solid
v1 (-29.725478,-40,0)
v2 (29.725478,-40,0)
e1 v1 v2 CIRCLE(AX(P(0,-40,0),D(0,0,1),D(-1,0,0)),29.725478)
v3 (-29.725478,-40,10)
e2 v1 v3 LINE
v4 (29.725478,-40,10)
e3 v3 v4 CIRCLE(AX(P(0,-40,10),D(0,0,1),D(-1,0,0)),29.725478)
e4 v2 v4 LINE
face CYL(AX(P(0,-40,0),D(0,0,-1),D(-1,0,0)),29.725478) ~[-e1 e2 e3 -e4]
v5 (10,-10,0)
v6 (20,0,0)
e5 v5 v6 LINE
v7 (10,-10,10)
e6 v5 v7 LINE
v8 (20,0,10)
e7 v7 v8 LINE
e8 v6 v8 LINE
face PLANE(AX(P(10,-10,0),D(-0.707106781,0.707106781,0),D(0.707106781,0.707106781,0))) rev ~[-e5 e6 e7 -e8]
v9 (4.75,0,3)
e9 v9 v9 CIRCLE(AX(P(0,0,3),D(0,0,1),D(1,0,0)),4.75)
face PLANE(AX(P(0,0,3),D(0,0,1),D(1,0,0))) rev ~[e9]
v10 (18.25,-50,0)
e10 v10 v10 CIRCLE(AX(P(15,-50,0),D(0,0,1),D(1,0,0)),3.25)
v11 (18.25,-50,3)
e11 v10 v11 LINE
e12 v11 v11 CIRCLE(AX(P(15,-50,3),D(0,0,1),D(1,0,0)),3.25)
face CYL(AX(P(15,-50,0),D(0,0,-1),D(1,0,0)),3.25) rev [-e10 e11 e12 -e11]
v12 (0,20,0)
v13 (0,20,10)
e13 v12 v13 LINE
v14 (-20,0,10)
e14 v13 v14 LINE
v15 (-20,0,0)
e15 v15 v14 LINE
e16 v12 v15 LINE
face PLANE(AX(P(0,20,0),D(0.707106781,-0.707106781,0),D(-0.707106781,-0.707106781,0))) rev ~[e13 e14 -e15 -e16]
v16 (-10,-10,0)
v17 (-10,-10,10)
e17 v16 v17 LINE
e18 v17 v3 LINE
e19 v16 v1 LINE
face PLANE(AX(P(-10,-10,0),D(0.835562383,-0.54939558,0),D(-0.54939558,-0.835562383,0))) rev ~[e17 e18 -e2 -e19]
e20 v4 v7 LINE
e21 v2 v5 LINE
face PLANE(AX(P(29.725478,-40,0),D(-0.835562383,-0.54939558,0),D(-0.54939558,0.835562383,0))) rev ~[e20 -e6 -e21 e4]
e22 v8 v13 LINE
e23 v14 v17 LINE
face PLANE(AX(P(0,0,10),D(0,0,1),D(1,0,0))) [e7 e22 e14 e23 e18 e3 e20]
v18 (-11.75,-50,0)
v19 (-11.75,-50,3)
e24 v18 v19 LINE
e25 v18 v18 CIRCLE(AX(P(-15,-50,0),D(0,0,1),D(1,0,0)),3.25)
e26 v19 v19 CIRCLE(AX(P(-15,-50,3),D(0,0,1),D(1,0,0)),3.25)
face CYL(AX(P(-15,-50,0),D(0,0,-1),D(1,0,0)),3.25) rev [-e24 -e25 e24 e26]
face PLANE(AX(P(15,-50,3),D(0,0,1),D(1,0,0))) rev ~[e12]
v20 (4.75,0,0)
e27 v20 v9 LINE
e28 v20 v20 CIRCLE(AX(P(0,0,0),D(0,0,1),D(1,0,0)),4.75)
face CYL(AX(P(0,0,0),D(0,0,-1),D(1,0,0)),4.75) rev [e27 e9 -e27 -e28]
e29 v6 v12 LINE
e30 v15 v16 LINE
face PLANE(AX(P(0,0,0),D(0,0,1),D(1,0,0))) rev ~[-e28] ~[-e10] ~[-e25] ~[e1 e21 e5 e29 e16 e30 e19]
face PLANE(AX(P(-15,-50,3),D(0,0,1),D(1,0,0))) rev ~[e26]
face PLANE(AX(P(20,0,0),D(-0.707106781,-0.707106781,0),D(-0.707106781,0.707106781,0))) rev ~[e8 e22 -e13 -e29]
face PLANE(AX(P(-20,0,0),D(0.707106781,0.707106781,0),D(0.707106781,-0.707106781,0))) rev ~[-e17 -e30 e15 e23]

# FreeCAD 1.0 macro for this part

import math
import FreeCAD as App
import Part
import Sketcher
Q = App.Units.Quantity

doc = App.newDocument("Part")
params = doc.addObject("Spreadsheet::Sheet", "Params")
for row, (alias, value) in enumerate([
    ("pad1_length", "10 mm"),
    ("sketch2_diameter", "9.5 mm"),
    ("sketch2_diameter2", "6.5 mm"),
    ("pocket1_length", "3 mm"),
], start=1):
    params.set(f"A{row}", alias)
    params.set(f"B{row}", "=" + value)
    params.setAlias(f"B{row}", alias)

body = doc.addObject("PartDesign::Body", "Body")

# Sketch on XY plane
sketch1 = body.newObject("Sketcher::SketchObject", "Sketch")
sketch1.AttachmentSupport = (doc.getObject("XY_Plane"), [""])
sketch1.MapMode = "FlatFace"
sketch1.addGeometry(Part.LineSegment(App.Vector(20, 0, 0), App.Vector(0, 20, 0)), False)
sketch1.addGeometry(Part.LineSegment(App.Vector(0, 20, 0), App.Vector(-20, 0, 0)), False)
sketch1.addGeometry(Part.LineSegment(App.Vector(-20, 0, 0), App.Vector(-10, -10, 0)), False)
sketch1.addGeometry(Part.LineSegment(App.Vector(-10, -10, 0), App.Vector(-30, -40, 0)), False)
sketch1.addGeometry(Part.ArcOfCircle(Part.Circle(App.Vector(0, -40, 0), App.Vector(0, 0, 1), 30), math.radians(180), math.radians(360)), False)
sketch1.addGeometry(Part.LineSegment(App.Vector(30, -40, 0), App.Vector(10, -10, 0)), False)
sketch1.addGeometry(Part.LineSegment(App.Vector(10, -10, 0), App.Vector(20, 0, 0)), False)
sketch1.addConstraint(Sketcher.Constraint("Coincident", 0, 2, 1, 1))
sketch1.addConstraint(Sketcher.Constraint("Coincident", 1, 2, 2, 1))
sketch1.addConstraint(Sketcher.Constraint("Coincident", 2, 2, 3, 1))
sketch1.addConstraint(Sketcher.Constraint("Coincident", 3, 2, 4, 1))
sketch1.addConstraint(Sketcher.Constraint("Coincident", 4, 2, 5, 1))
sketch1.addConstraint(Sketcher.Constraint("Coincident", 5, 2, 6, 1))
sketch1.addConstraint(Sketcher.Constraint("Coincident", 6, 2, 0, 1))
sketch1.addConstraint(Sketcher.Constraint("Symmetric", 1, 2, 6, 2, -1, 1))
sketch1.addConstraint(Sketcher.Constraint("Symmetric", 3, 2, 4, 2, -2))
sketch1.addConstraint(Sketcher.Constraint("Symmetric", 2, 2, 5, 2, -2))
sketch1.addConstraint(Sketcher.Constraint("PointOnObject", 0, 2, -2))
sketch1.addConstraint(Sketcher.Constraint("PointOnObject", 1, 2, -1))
sketch1.addConstraint(Sketcher.Constraint("Perpendicular", 0, 1))
sketch1.addConstraint(Sketcher.Constraint("Perpendicular", 1, 2))
sketch1.addConstraint(Sketcher.Constraint("Horizontal", 4, 3, 3, 2))
sketch1.addConstraint(Sketcher.Constraint("DistanceY", 4, 3, -1, 1, Q("40 mm")))
sketch1.addConstraint(Sketcher.Constraint("DistanceY", -1, 1, 0, 2, Q("20 mm")))
sketch1.addConstraint(Sketcher.Constraint("DistanceX", 2, 2, -1, 1, Q("10 mm")))
sketch1.addConstraint(Sketcher.Constraint("Radius", 4, Q("29.725478 mm")))
pad1 = body.newObject("PartDesign::Pad", "Pad")
pad1.Profile = sketch1
pad1.setExpression("Length", "Params.pad1_length")

# Sketch on XY plane
sketch2 = body.newObject("Sketcher::SketchObject", "Sketch001")
sketch2.AttachmentSupport = (doc.getObject("XY_Plane"), [""])
sketch2.MapMode = "FlatFace"
sketch2.addGeometry(Part.Circle(App.Vector(0, 0, 0), App.Vector(0, 0, 1), 4.8), False)
sketch2.addGeometry(Part.Circle(App.Vector(15, -50, 0), App.Vector(0, 0, 1), 3.2), False)
sketch2.addGeometry(Part.Circle(App.Vector(-15, -50, 0), App.Vector(0, 0, 1), 3.2), False)
sketch2.addConstraint(Sketcher.Constraint("Coincident", 0, 3, -1, 1))
sketch2.addConstraint(Sketcher.Constraint("Equal", 1, 2))
sketch2.addConstraint(Sketcher.Constraint("Symmetric", 1, 3, 2, 3, -2))
sketch2.addConstraint(Sketcher.Constraint("Diameter", 0, Q("9.5 mm")))
sketch2.addConstraint(Sketcher.Constraint("Diameter", 1, Q("6.5 mm")))
sketch2.addConstraint(Sketcher.Constraint("DistanceX", -1, 1, 1, 3, Q("15 mm")))
sketch2.addConstraint(Sketcher.Constraint("DistanceY", 1, 3, -1, 1, Q("50 mm")))
sketch2.setExpression("Constraints[3]", "Params.sketch2_diameter")
sketch2.setExpression("Constraints[4]", "Params.sketch2_diameter2")
pocket1 = body.newObject("PartDesign::Pocket", "Pocket")
pocket1.Profile = sketch2
pocket1.setExpression("Length", "Params.pocket1_length")
pocket1.Reversed = True

doc.recompute()
